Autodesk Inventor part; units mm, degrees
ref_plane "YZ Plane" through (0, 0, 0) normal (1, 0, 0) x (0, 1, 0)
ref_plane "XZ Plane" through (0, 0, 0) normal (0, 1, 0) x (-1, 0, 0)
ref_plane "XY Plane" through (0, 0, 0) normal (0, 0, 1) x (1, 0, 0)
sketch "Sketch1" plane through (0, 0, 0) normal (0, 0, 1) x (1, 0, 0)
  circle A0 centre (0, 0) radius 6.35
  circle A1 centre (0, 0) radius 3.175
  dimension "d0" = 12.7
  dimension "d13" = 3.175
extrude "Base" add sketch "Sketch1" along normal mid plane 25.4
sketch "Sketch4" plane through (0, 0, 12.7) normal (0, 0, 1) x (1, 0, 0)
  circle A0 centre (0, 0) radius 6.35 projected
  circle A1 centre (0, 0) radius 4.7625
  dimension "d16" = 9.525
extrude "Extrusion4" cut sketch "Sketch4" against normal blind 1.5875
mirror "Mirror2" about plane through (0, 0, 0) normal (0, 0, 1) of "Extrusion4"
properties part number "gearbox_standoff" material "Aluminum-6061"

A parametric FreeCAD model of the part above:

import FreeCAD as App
import Part
import Sketcher
Q = App.Units.Quantity

doc = App.newDocument("Part")
body = doc.addObject("PartDesign::Body", "Body")

sketch1 = doc.addObject("Sketcher::SketchObject", "Sketch")
body.addObject(sketch1)
sketch1.AttachmentSupport = (doc.XY_Plane, [""])
sketch1.MapMode = "FlatFace"
sketch1.addGeometry([
    Part.Circle(App.Vector(0, 0, 0), App.Vector(0, 0, 1), 6.3),
    Part.Circle(App.Vector(0, 0, 0), App.Vector(0, 0, 1), 3.2),
], False)
sketch1.addConstraint([
    Sketcher.Constraint("Coincident", 0, 3, -1, 1),
    Sketcher.Constraint("Coincident", 1, 3, -1, 1),
    Sketcher.Constraint("Diameter", 0, Q("0.5 in")),
    Sketcher.Constraint("Diameter", 1, Q("0.25 in")),
])
pad1 = doc.addObject("PartDesign::Pad", "Pad")
body.addObject(pad1)
pad1.Profile = sketch1
pad1.Length = Q("1 in")
pad1.Midplane = True

sketch2 = doc.addObject("Sketcher::SketchObject", "Sketch001")
body.addObject(sketch2)
sketch2.AttachmentSupport = (doc.XY_Plane, [""])
sketch2.MapMode = "FlatFace"
sketch2.AttachmentOffset = App.Placement(App.Vector(0, 0, 0.5 * 25.4), App.Rotation())
sketch2.addGeometry([
    Part.Circle(App.Vector(0, 0, 0), App.Vector(0, 0, 1), 6.3),
    Part.Circle(App.Vector(0, 0, 0), App.Vector(0, 0, 1), 4.8),
], False)
sketch2.addConstraint([
    Sketcher.Constraint("Coincident", 0, 3, -1, 1),
    Sketcher.Constraint("Coincident", 1, 3, -1, 1),
    Sketcher.Constraint("Diameter", 1, Q("0.375 in")),
    Sketcher.Constraint("Diameter", 0, Q("0.5 in")),
])
pocket1 = doc.addObject("PartDesign::Pocket", "Pocket")
body.addObject(pocket1)
pocket1.Profile = sketch2
pocket1.Length = Q("0.0625 in")
doc.recompute()

mirrored = doc.addObject("PartDesign::Mirrored", "Mirrored")
body.addObject(mirrored)
mirrored.Originals = [pocket1]
mirrored.MirrorPlane = (doc.XY_Plane, [""])
body.Tip = mirrored

doc.recompute()
